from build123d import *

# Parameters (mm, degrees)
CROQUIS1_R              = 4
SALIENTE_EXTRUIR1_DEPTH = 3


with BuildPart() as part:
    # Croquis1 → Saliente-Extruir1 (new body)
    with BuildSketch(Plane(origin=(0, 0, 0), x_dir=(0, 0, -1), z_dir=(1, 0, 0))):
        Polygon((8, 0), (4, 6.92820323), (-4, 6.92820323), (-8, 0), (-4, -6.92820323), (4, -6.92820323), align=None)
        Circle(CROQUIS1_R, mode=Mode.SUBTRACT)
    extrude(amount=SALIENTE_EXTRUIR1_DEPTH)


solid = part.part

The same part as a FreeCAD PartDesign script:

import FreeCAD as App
import Part
import Sketcher
from FreeCAD import Vector
Q = App.Units.Quantity

doc = App.newDocument("Part")
body = doc.addObject("PartDesign::Body", "Body")

# Sketch on YZ plane
sketch1 = doc.addObject("Sketcher::SketchObject", "Sketch")
body.addObject(sketch1)
sketch1.AttachmentSupport = (doc.YZ_Plane, [""])
sketch1.MapMode = "FlatFace"
sketch1.addGeometry(Part.LineSegment(Vector(0, -8, 0), Vector(6.9, -4, 0)), False)
sketch1.addGeometry(Part.LineSegment(Vector(6.9, -4, 0), Vector(6.9, 4, 0)), False)
sketch1.addGeometry(Part.LineSegment(Vector(6.9, 4, 0), Vector(0, 8, 0)), False)
sketch1.addGeometry(Part.LineSegment(Vector(0, 8, 0), Vector(-6.9, 4, 0)), False)
sketch1.addGeometry(Part.LineSegment(Vector(-6.9, 4, 0), Vector(-6.9, -4, 0)), False)
sketch1.addGeometry(Part.LineSegment(Vector(-6.9, -4, 0), Vector(0, -8, 0)), False)
sketch1.addGeometry(Part.Circle(Vector(0, 0, 0), Vector(0, 0, 1), 4), False)
sketch1.addConstraint(Sketcher.Constraint("Coincident", 0, 2, 1, 1))
sketch1.addConstraint(Sketcher.Constraint("Coincident", 1, 2, 2, 1))
sketch1.addConstraint(Sketcher.Constraint("Coincident", 2, 2, 3, 1))
sketch1.addConstraint(Sketcher.Constraint("Coincident", 3, 2, 4, 1))
sketch1.addConstraint(Sketcher.Constraint("Coincident", 4, 2, 5, 1))
sketch1.addConstraint(Sketcher.Constraint("Coincident", 5, 2, 0, 1))
sketch1.addConstraint(Sketcher.Constraint("Vertical", 1))
sketch1.addConstraint(Sketcher.Constraint("Vertical", 4))
sketch1.addConstraint(Sketcher.Constraint("Coincident", 6, 3, -1, 1))
sketch1.addConstraint(Sketcher.Constraint("Symmetric", 0, 2, 3, 2, -1, 1))
sketch1.addConstraint(Sketcher.Constraint("Symmetric", 2, 2, 5, 2, -1, 1))
sketch1.addConstraint(Sketcher.Constraint("PointOnObject", 2, 2, -2))
sketch1.addConstraint(Sketcher.Constraint("Parallel", 2, 5))
sketch1.addConstraint(Sketcher.Constraint("Horizontal", 1, 2, 3, 2))
sketch1.addConstraint(Sketcher.Constraint("Diameter", 6, Q("8 mm")))
sketch1.addConstraint(Sketcher.Constraint("DistanceY", 1, 1, 1, 2, Q("8 mm")))
sketch1.addConstraint(Sketcher.Constraint("Angle", 0, Q("30 deg")))
sketch1.addConstraint(Sketcher.Constraint("Distance", 0, Q("8 mm")))
pad1 = doc.addObject("PartDesign::Pad", "Pad")
body.addObject(pad1)
pad1.Profile = sketch1
pad1.Length = 3

doc.recompute()
